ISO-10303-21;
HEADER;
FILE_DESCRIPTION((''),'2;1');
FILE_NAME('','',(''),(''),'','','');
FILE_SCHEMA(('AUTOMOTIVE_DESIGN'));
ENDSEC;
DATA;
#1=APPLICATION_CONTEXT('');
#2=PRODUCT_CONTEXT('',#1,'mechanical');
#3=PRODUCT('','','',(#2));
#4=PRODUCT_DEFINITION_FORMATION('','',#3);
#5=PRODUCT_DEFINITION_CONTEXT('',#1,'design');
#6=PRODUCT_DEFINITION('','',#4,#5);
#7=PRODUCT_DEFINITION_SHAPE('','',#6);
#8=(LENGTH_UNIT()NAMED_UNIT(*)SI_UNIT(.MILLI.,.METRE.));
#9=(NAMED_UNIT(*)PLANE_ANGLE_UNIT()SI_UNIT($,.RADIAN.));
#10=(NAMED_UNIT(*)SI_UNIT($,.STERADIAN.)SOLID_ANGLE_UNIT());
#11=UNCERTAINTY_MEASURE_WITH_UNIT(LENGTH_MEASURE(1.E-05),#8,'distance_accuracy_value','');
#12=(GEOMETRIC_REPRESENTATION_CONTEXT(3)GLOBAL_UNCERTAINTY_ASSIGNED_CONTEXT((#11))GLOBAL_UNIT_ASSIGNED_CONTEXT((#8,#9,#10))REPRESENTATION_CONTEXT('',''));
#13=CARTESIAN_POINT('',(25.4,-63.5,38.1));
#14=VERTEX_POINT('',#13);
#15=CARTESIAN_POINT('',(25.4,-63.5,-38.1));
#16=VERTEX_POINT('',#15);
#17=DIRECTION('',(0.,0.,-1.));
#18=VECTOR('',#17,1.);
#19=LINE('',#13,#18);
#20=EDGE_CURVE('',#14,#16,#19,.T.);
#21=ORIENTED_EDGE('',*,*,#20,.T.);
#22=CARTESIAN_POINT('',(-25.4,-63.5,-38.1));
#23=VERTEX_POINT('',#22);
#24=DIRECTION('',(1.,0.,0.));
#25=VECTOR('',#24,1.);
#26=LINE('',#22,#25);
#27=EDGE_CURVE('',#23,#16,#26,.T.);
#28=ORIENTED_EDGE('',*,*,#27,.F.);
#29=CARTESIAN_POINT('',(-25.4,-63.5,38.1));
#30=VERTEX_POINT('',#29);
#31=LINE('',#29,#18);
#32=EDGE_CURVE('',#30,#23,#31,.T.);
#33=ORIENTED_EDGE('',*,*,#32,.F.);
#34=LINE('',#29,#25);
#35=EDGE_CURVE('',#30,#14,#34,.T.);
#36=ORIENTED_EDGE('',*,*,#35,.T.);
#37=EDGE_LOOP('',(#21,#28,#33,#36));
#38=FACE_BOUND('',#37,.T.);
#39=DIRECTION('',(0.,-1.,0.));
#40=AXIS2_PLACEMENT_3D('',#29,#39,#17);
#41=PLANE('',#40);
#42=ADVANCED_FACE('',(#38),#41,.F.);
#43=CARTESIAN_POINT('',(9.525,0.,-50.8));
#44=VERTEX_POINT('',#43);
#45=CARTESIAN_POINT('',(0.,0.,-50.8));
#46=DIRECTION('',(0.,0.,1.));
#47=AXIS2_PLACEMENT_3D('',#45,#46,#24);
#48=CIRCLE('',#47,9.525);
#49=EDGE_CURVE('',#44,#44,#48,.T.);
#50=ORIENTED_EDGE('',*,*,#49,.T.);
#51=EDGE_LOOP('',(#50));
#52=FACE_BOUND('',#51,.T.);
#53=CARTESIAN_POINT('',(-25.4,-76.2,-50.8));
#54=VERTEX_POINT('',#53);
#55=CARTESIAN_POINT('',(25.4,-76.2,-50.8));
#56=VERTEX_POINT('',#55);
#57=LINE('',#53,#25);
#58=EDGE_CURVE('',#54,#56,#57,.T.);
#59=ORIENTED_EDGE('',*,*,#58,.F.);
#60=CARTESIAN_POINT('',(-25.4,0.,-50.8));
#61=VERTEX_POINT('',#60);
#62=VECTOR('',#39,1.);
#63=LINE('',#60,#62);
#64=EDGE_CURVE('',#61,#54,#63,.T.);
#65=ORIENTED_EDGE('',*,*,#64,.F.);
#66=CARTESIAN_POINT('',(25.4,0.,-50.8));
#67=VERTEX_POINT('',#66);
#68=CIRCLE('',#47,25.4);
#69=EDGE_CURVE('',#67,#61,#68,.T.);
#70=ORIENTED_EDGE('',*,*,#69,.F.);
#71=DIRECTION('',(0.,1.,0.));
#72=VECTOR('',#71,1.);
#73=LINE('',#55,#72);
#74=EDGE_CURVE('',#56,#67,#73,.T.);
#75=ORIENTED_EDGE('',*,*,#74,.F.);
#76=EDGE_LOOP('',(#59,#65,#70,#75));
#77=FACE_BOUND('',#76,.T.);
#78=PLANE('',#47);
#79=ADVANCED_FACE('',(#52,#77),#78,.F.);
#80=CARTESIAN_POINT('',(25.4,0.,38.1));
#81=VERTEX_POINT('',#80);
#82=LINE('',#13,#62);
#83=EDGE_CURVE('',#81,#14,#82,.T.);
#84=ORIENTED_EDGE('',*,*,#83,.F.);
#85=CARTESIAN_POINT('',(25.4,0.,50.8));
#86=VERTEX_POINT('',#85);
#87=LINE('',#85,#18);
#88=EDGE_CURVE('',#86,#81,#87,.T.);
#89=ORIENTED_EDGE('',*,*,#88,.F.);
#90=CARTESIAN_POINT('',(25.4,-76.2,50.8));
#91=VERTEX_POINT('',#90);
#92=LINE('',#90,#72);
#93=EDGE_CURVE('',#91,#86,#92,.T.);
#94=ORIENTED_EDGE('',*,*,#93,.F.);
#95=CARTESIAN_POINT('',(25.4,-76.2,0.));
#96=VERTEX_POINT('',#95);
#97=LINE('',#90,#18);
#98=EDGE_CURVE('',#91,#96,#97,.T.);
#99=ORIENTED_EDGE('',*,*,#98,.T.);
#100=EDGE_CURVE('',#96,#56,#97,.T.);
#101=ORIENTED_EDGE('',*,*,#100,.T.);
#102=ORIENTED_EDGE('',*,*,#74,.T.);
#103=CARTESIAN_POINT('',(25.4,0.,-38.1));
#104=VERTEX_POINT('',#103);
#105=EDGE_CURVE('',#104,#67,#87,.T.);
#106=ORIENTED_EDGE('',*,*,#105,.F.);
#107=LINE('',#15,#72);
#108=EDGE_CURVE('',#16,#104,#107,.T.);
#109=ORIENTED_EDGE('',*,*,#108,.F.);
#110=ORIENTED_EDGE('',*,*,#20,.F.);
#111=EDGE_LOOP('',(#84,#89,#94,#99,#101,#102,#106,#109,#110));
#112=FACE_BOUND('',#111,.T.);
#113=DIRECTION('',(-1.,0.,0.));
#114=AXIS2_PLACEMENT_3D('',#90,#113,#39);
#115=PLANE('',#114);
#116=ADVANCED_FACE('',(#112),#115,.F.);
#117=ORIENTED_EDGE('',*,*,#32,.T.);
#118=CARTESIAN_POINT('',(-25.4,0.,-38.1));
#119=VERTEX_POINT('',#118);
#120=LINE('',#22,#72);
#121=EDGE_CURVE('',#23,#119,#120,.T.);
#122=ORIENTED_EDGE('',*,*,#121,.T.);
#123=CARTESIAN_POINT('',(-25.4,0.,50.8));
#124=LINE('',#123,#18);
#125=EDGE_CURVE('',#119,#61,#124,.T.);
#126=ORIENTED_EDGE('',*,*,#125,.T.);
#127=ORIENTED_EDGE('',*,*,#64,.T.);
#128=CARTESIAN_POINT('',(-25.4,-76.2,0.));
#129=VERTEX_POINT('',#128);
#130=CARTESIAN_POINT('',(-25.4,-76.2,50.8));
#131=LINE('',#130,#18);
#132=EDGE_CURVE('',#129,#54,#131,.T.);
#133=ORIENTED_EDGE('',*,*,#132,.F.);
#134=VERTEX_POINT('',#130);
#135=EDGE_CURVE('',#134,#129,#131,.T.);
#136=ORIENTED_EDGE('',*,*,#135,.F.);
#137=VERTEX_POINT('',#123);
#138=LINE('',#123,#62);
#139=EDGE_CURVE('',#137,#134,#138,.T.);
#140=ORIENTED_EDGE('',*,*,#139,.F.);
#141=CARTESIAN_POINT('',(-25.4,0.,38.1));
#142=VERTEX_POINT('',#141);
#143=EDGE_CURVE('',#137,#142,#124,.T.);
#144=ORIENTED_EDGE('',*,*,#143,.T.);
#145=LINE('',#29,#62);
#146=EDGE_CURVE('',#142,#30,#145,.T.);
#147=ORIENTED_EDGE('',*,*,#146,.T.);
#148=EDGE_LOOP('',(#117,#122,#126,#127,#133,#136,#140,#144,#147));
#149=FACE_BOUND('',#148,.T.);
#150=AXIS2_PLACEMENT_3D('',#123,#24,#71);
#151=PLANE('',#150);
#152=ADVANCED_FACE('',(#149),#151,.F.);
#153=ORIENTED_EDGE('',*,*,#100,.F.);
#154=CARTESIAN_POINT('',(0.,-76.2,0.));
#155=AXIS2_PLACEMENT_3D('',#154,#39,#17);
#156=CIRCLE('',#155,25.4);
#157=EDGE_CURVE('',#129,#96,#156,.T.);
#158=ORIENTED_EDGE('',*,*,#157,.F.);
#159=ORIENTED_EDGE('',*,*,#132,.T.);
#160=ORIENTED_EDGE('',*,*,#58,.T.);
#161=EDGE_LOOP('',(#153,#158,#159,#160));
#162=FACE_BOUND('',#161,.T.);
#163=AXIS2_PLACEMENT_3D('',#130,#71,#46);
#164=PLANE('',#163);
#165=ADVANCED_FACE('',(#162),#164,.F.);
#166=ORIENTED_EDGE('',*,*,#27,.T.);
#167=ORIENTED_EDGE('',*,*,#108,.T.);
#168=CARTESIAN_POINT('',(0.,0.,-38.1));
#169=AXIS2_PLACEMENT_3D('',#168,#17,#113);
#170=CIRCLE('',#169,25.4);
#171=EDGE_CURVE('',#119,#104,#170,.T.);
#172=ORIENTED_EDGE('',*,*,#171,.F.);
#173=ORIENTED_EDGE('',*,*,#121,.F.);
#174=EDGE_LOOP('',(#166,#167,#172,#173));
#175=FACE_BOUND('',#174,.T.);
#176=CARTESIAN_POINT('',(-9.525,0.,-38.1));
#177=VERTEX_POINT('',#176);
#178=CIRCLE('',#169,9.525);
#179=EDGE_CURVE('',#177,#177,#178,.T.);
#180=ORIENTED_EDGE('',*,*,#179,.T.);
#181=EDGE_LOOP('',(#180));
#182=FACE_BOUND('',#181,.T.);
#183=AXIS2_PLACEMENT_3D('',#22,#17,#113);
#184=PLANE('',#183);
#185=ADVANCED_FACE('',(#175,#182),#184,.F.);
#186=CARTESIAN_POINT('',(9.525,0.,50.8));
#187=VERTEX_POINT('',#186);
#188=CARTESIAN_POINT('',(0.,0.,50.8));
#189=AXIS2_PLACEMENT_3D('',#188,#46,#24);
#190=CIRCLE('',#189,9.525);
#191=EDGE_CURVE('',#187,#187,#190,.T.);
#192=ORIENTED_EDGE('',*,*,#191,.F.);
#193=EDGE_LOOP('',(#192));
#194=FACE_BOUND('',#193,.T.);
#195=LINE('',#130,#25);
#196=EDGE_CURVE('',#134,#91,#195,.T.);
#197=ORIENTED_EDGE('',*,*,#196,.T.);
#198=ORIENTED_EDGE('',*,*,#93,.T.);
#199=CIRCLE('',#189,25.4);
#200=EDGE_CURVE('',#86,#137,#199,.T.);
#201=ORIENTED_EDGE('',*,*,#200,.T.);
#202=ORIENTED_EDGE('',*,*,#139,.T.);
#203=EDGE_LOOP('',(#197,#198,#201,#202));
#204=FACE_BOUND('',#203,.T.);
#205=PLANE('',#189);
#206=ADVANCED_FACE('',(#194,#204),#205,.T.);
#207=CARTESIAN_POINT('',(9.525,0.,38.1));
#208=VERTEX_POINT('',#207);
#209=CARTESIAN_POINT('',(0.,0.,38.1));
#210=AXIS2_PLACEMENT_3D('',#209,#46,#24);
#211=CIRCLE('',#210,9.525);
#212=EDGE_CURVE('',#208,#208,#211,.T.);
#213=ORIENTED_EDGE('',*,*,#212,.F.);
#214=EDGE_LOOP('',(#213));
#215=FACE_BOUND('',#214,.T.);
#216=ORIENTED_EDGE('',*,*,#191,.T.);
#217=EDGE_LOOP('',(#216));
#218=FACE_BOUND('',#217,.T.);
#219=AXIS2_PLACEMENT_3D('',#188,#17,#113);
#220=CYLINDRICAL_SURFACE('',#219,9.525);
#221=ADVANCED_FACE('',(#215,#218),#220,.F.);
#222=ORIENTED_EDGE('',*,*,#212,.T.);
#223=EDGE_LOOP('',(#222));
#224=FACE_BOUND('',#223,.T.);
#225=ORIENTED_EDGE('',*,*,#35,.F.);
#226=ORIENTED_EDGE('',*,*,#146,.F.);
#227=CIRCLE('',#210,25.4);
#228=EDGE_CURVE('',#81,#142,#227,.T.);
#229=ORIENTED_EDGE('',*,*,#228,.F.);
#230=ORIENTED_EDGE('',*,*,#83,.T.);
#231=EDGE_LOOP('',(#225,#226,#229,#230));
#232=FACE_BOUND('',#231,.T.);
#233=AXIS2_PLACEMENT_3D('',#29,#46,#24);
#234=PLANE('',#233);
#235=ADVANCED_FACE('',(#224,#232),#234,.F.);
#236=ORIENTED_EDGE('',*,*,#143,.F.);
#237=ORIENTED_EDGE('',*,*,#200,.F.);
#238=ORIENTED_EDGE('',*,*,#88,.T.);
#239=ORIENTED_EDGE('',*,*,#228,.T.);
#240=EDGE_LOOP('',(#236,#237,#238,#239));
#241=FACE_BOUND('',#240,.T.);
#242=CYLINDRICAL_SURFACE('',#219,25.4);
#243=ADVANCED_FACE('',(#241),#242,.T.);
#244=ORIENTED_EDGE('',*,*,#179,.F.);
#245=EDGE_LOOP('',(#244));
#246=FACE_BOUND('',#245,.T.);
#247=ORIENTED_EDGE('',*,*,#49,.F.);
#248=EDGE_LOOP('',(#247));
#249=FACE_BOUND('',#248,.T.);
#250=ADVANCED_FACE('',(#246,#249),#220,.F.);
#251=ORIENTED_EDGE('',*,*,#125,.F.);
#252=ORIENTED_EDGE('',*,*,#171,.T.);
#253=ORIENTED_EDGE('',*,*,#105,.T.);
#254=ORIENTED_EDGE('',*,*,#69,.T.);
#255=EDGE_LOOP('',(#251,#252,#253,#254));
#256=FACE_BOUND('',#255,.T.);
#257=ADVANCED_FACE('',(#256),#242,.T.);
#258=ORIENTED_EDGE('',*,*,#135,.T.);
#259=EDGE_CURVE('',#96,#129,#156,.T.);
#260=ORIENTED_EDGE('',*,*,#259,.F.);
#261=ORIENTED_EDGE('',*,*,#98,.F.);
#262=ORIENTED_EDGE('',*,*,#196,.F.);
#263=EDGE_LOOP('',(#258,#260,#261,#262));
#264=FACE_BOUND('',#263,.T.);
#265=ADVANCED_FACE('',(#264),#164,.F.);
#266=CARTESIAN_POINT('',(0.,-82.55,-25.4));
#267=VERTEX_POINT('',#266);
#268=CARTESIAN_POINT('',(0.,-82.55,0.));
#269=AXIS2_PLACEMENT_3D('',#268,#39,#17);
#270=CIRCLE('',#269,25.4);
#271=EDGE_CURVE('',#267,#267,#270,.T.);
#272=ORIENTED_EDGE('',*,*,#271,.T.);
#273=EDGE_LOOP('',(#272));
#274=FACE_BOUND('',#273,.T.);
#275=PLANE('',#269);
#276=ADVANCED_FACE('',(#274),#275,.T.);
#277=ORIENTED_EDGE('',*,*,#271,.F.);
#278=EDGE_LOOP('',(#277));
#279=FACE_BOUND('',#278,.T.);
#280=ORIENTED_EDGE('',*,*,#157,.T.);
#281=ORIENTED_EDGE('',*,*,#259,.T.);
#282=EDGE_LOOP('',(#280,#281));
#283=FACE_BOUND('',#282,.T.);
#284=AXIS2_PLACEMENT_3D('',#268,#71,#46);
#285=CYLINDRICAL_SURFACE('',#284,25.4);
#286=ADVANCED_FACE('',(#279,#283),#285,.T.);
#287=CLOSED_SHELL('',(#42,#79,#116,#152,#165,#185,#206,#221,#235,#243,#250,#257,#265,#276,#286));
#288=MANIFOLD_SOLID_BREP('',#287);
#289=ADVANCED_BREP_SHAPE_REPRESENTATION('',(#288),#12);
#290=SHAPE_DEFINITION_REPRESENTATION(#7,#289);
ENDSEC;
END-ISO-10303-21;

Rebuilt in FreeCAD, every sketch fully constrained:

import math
import FreeCAD as App
import Part
import Sketcher

V = App.Vector
Q = App.Units.Quantity


def add_polygon(sketch, points):
    """Adds a closed chain of lines whose ends are joined by coincident constraints."""
    first, n = sketch.GeometryCount, len(points)
    for a, b in zip(points, points[1:] + points[:1]):
        sketch.addGeometry(Part.LineSegment(App.Vector(*a, 0), App.Vector(*b, 0)), False)
    for i in range(n):
        sketch.addConstraint(Sketcher.Constraint("Coincident", first + i, 2, first + (i + 1) % n, 1))

doc = App.newDocument("Part")
body = doc.addObject("PartDesign::Body", "Body")

sketch1 = body.newObject("Sketcher::SketchObject", "Sketch")
sketch1.AttachmentSupport = (doc.getObject("XY_Plane"), [""])
sketch1.MapMode = "FlatFace"
sketch1.addGeometry([
    Part.LineSegment(V(-25.4, 0, 0), V(-25.4, -76.2, 0)),
    Part.LineSegment(V(-25.4, -76.2, 0), V(25.4, -76.2, 0)),
    Part.LineSegment(V(25.4, -76.2, 0), V(25.4, 0, 0)),
    Part.ArcOfCircle(Part.Circle(V(0, 0, 0), V(0, 0, 1), 25.4), math.radians(0), math.radians(180)),
    Part.Circle(V(0, 0, 0), V(0, 0, 1), 9.525),
], False)
sketch1.addConstraint([
    Sketcher.Constraint("Coincident", 0, 2, 1, 1),
    Sketcher.Constraint("Coincident", 1, 2, 2, 1),
    Sketcher.Constraint("Tangent", 2, 2, 3, 1),
    Sketcher.Constraint("Tangent", 3, 2, 0, 1),
    Sketcher.Constraint("Vertical", 0),
    Sketcher.Constraint("Horizontal", 1),
    Sketcher.Constraint("Vertical", 2),
    Sketcher.Constraint("Coincident", 3, 3, -1, 1),
    Sketcher.Constraint("Coincident", 4, 3, -1, 1),
    Sketcher.Constraint("Radius", 3, Q("1 in")),
    Sketcher.Constraint("Diameter", 4, Q("0.75 in")),
    Sketcher.Constraint("DistanceY", 0, 2, 0, 1, Q("3 in")),
])
pad1 = body.newObject("PartDesign::Pad", "Pad")
pad1.Profile = sketch1
pad1.Length = Q("4 in")
pad1.Midplane = True

sketch2 = body.newObject("Sketcher::SketchObject", "Sketch001")
sketch2.AttachmentSupport = (doc.getObject("YZ_Plane"), [""])
sketch2.MapMode = "FlatFace"
add_polygon(sketch2, [(25.4, 38.1), (-63.5, 38.1), (-63.5, -38.1), (25.4, -38.1)])
sketch2.addConstraint([
    Sketcher.Constraint("Horizontal", 0),
    Sketcher.Constraint("Vertical", 1),
    Sketcher.Constraint("Horizontal", 2),
    Sketcher.Constraint("Vertical", 3),
    Sketcher.Constraint("DistanceY", 1, 2, 1, 1, Q("3 in")),
    Sketcher.Constraint("DistanceX", 0, 2, 0, 1, Q("3.5 in")),
    Sketcher.Constraint("DistanceX", -1, 1, 2, 2, Q("1 in")),
    Sketcher.Constraint("DistanceY", -1, 1, 0, 2, Q("1.5 in")),
])
pocket1 = body.newObject("PartDesign::Pocket", "Pocket")
pocket1.Profile = sketch2
pocket1.Type = "ThroughAll"
pocket1.Midplane = True

sketch3 = body.newObject("Sketcher::SketchObject", "Sketch002")
sketch3.AttachmentSupport = (doc.getObject("XZ_Plane"), [""])
sketch3.MapMode = "FlatFace"
sketch3.AttachmentOffset = App.Placement(V(0, 0, 3 * 25.4), App.Rotation())
sketch3.addGeometry(Part.Circle(V(0, 0, 0), V(0, 0, 1), 25.4), False)
sketch3.addConstraint([
    Sketcher.Constraint("Coincident", 0, 3, -1, 1),
    Sketcher.Constraint("Diameter", 0, Q("2 in")),
])
pad2 = body.newObject("PartDesign::Pad", "Pad001")
pad2.Profile = sketch3
pad2.Length = Q("0.25 in")

doc.recompute()
